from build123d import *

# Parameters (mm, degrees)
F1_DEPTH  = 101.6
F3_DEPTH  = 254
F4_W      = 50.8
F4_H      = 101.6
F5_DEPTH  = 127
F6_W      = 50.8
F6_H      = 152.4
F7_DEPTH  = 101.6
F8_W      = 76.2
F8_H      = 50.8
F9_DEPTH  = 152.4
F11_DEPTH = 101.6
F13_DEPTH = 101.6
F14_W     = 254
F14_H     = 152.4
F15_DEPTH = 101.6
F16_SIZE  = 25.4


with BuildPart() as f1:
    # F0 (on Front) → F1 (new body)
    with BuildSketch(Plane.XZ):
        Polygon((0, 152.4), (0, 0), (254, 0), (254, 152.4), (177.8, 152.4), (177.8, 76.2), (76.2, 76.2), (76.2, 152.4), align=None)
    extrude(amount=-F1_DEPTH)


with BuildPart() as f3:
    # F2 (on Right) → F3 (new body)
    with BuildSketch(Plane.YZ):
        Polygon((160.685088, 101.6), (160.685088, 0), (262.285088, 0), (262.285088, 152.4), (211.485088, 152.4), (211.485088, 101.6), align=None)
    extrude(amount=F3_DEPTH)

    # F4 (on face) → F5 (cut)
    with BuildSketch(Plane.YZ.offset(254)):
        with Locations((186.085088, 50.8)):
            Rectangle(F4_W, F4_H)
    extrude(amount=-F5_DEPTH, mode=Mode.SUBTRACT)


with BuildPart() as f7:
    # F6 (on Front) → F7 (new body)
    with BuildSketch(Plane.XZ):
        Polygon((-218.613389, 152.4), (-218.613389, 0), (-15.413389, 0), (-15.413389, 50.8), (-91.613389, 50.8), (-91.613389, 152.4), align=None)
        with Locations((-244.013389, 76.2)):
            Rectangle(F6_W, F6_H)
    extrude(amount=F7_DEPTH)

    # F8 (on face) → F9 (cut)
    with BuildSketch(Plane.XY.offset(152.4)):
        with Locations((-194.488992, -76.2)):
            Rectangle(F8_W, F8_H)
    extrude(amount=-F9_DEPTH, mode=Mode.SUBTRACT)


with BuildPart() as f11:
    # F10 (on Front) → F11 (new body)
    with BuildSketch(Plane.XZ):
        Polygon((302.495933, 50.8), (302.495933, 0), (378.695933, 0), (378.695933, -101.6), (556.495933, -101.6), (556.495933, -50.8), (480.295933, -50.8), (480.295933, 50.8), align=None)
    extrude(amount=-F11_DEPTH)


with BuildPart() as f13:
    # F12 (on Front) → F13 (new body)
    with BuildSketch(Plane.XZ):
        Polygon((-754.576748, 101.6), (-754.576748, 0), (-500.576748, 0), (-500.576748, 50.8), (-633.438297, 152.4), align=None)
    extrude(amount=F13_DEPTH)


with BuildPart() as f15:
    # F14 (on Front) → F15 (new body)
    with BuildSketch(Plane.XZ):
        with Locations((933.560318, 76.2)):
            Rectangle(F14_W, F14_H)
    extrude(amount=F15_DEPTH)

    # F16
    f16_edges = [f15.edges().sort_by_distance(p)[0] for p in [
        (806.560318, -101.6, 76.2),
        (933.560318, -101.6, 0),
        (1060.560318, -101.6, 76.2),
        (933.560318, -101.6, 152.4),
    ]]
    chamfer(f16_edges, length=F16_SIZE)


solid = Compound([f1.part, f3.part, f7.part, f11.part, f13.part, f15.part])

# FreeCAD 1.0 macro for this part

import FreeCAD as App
import Part
import Sketcher
Q = App.Units.Quantity


def edges_at(feature, points):
    """Names of the edges that pass closest to the given points."""
    edges = feature.Shape.Edges
    near = lambda p: min(range(len(edges)), key=lambda i: edges[i].distToShape(Part.Vertex(*p))[0])
    return sorted({f"Edge{near(p) + 1}" for p in points})


def add_polygon(sketch, points):
    """Adds a closed chain of lines whose ends are joined by coincident constraints."""
    first, n = sketch.GeometryCount, len(points)
    for a, b in zip(points, points[1:] + points[:1]):
        sketch.addGeometry(Part.LineSegment(App.Vector(*a, 0), App.Vector(*b, 0)), False)
    for i in range(n):
        sketch.addConstraint(Sketcher.Constraint("Coincident", first + i, 2, first + (i + 1) % n, 1))

doc = App.newDocument("Part")
params = doc.addObject("Spreadsheet::Sheet", "Params")
for row, (alias, value) in enumerate([
    ("sketch1_width", "10 in"),
    ("sketch1_width2", "3 in"),
    ("sketch1_height", "6 in"),
    ("pad1_length", "4 in"),
    ("sketch2_width", "4 in"),
    ("pad2_length", "10 in"),
    ("sketch3_width", "2 in"),
    ("sketch3_height", "4 in"),
    ("pocket1_length", "5 in"),
    ("sketch4_width", "3 in"),
    ("sketch4_width2", "7 in"),
    ("sketch4_height", "2 in"),
    ("sketch4_height2", "4 in"),
    ("pad3_length", "4 in"),
    ("sketch5_width", "3 in"),
    ("sketch5_height", "2 in"),
    ("pocket2_length", "6 in"),
    ("sketch6_width", "3 in"),
    ("sketch6_width2", "7 in"),
    ("sketch6_height", "2 in"),
    ("sketch6_height2", "4 in"),
    ("pad4_length", "4 in"),
    ("sketch7_width", "10 in"),
    ("sketch7_height", "4 in"),
    ("sketch7_height2", "2 in"),
    ("pad5_length", "4 in"),
    ("sketch8_width", "10 in"),
    ("sketch8_height", "6 in"),
    ("pad6_length", "4 in"),
    ("chamfer_size", "1 in"),
], start=1):
    params.set(f"A{row}", alias)
    params.set(f"B{row}", "=" + value)
    params.setAlias(f"B{row}", alias)

body = doc.addObject("PartDesign::Body", "Body")

sketch1 = body.newObject("Sketcher::SketchObject", "Sketch")
sketch1.AttachmentSupport = (doc.getObject("XZ_Plane"), [""])
sketch1.MapMode = "FlatFace"
add_polygon(sketch1, [(0, 152), (0, 0), (254, 0), (254, 152), (178, 152), (178, 76), (76, 76), (76, 152)])
sketch1.addConstraint(Sketcher.Constraint("Vertical", 0))
sketch1.addConstraint(Sketcher.Constraint("Horizontal", 1))
sketch1.addConstraint(Sketcher.Constraint("Vertical", 2))
sketch1.addConstraint(Sketcher.Constraint("Horizontal", 3))
sketch1.addConstraint(Sketcher.Constraint("Vertical", 4))
sketch1.addConstraint(Sketcher.Constraint("Horizontal", 5))
sketch1.addConstraint(Sketcher.Constraint("Vertical", 6))
sketch1.addConstraint(Sketcher.Constraint("Horizontal", 7))
sketch1.addConstraint(Sketcher.Constraint("Coincident", 0, 2, -1, 1))
sketch1.addConstraint(Sketcher.Constraint("Horizontal", 3, 2, 6, 2))
sketch1.addConstraint(Sketcher.Constraint("Equal", 3, 7))
sketch1.addConstraint(Sketcher.Constraint("Equal", 7, 4))
sketch1.addConstraint(Sketcher.Constraint("DistanceX", 1, 1, 1, 2, Q("10 in")))
sketch1.addConstraint(Sketcher.Constraint("DistanceX", 3, 2, 3, 1, Q("3 in")))
sketch1.addConstraint(Sketcher.Constraint("DistanceY", 0, 2, 0, 1, Q("6 in")))
sketch1.setExpression("Constraints[20]", "Params.sketch1_width")
sketch1.setExpression("Constraints[21]", "Params.sketch1_width2")
sketch1.setExpression("Constraints[22]", "Params.sketch1_height")
pad1 = body.newObject("PartDesign::Pad", "Pad")
pad1.Profile = sketch1
pad1.setExpression("Length", "Params.pad1_length")
pad1.Reversed = True
body2 = doc.addObject("PartDesign::Body", "Body001")

sketch2 = body2.newObject("Sketcher::SketchObject", "Sketch001")
sketch2.AttachmentSupport = (doc.getObject("YZ_Plane001"), [""])
sketch2.MapMode = "FlatFace"
add_polygon(sketch2, [(161, 102), (161, 0), (262, 0), (262, 152), (211, 152), (211, 102)])
sketch2.addConstraint(Sketcher.Constraint("Vertical", 0))
sketch2.addConstraint(Sketcher.Constraint("Horizontal", 1))
sketch2.addConstraint(Sketcher.Constraint("Vertical", 2))
sketch2.addConstraint(Sketcher.Constraint("Horizontal", 3))
sketch2.addConstraint(Sketcher.Constraint("Vertical", 4))
sketch2.addConstraint(Sketcher.Constraint("Horizontal", 5))
sketch2.addConstraint(Sketcher.Constraint("PointOnObject", 0, 2, -1))
sketch2.addConstraint(Sketcher.Constraint("Equal", 3, 5))
sketch2.addConstraint(Sketcher.Constraint("Equal", 1, 0))
sketch2.addConstraint(Sketcher.Constraint("Equal", 5, 4))
sketch2.addConstraint(Sketcher.Constraint("DistanceX", 1, 1, 1, 2, Q("4 in")))
sketch2.addConstraint(Sketcher.Constraint("DistanceX", -1, 1, 0, 2, 160.685088))
sketch2.setExpression("Constraints[16]", "Params.sketch2_width")
pad2 = body2.newObject("PartDesign::Pad", "Pad001")
pad2.Profile = sketch2
pad2.setExpression("Length", "Params.pad2_length")

sketch3 = body2.newObject("Sketcher::SketchObject", "Sketch002")
sketch3.AttachmentSupport = (doc.getObject("YZ_Plane001"), [""])
sketch3.MapMode = "FlatFace"
sketch3.AttachmentOffset = App.Placement(App.Vector(0, 0, 10 * 25.4), App.Rotation())
add_polygon(sketch3, [(161, 102), (161, 0), (211, 0), (211, 102)])
sketch3.addConstraint(Sketcher.Constraint("Vertical", 0))
sketch3.addConstraint(Sketcher.Constraint("Horizontal", 1))
sketch3.addConstraint(Sketcher.Constraint("Vertical", 2))
sketch3.addConstraint(Sketcher.Constraint("Horizontal", 3))
sketch3.addConstraint(Sketcher.Constraint("PointOnObject", 0, 2, -1))
sketch3.addConstraint(Sketcher.Constraint("DistanceX", 1, 1, 1, 2, Q("2 in")))
sketch3.addConstraint(Sketcher.Constraint("DistanceY", 0, 2, 0, 1, Q("4 in")))
sketch3.addConstraint(Sketcher.Constraint("DistanceX", -1, 1, 0, 2, 160.685088))
sketch3.setExpression("Constraints[9]", "Params.sketch3_width")
sketch3.setExpression("Constraints[10]", "Params.sketch3_height")
pocket1 = body2.newObject("PartDesign::Pocket", "Pocket")
pocket1.Profile = sketch3
pocket1.setExpression("Length", "Params.pocket1_length")
body3 = doc.addObject("PartDesign::Body", "Body002")

sketch4 = body3.newObject("Sketcher::SketchObject", "Sketch003")
sketch4.AttachmentSupport = (doc.getObject("XZ_Plane002"), [""])
sketch4.MapMode = "FlatFace"
add_polygon(sketch4, [(-15, 0), (-15, 51), (-92, 51), (-92, 152), (-269, 152), (-269, 0)])
sketch4.addConstraint(Sketcher.Constraint("Vertical", 0))
sketch4.addConstraint(Sketcher.Constraint("Horizontal", 1))
sketch4.addConstraint(Sketcher.Constraint("Vertical", 2))
sketch4.addConstraint(Sketcher.Constraint("Horizontal", 3))
sketch4.addConstraint(Sketcher.Constraint("Vertical", 4))
sketch4.addConstraint(Sketcher.Constraint("Horizontal", 5))
sketch4.addConstraint(Sketcher.Constraint("PointOnObject", 4, 2, -1))
sketch4.addConstraint(Sketcher.Constraint("DistanceX", 1, 2, 1, 1, Q("3 in")))
sketch4.addConstraint(Sketcher.Constraint("DistanceX", 3, 2, 3, 1, Q("7 in")))
sketch4.addConstraint(Sketcher.Constraint("DistanceY", 0, 1, 0, 2, Q("2 in")))
sketch4.addConstraint(Sketcher.Constraint("DistanceY", 2, 1, 2, 2, Q("4 in")))
sketch4.addConstraint(Sketcher.Constraint("DistanceX", 0, 2, -1, 1, 15.413389))
sketch4.setExpression("Constraints[13]", "Params.sketch4_width")
sketch4.setExpression("Constraints[14]", "Params.sketch4_width2")
sketch4.setExpression("Constraints[15]", "Params.sketch4_height")
sketch4.setExpression("Constraints[16]", "Params.sketch4_height2")
pad3 = body3.newObject("PartDesign::Pad", "Pad002")
pad3.Profile = sketch4
pad3.setExpression("Length", "Params.pad3_length")

sketch5 = body3.newObject("Sketcher::SketchObject", "Sketch004")
sketch5.AttachmentSupport = (doc.getObject("XY_Plane002"), [""])
sketch5.MapMode = "FlatFace"
sketch5.AttachmentOffset = App.Placement(App.Vector(0, 0, 6 * 25.4), App.Rotation())
add_polygon(sketch5, [(-233, -51), (-233, -102), (-156, -102), (-156, -51)])
sketch5.addConstraint(Sketcher.Constraint("Vertical", 0))
sketch5.addConstraint(Sketcher.Constraint("Horizontal", 1))
sketch5.addConstraint(Sketcher.Constraint("Vertical", 2))
sketch5.addConstraint(Sketcher.Constraint("Horizontal", 3))
sketch5.addConstraint(Sketcher.Constraint("DistanceX", 1, 1, 1, 2, Q("3 in")))
sketch5.addConstraint(Sketcher.Constraint("DistanceY", 0, 2, 0, 1, Q("2 in")))
sketch5.addConstraint(Sketcher.Constraint("DistanceY", 0, 2, -1, 1, Q("4 in")))
sketch5.addConstraint(Sketcher.Constraint("DistanceX", 0, 2, -1, 1, 232.588992))
sketch5.setExpression("Constraints[8]", "Params.sketch5_width")
sketch5.setExpression("Constraints[9]", "Params.sketch5_height")
pocket2 = body3.newObject("PartDesign::Pocket", "Pocket001")
pocket2.Profile = sketch5
pocket2.setExpression("Length", "Params.pocket2_length")
body4 = doc.addObject("PartDesign::Body", "Body003")

sketch6 = body4.newObject("Sketcher::SketchObject", "Sketch005")
sketch6.AttachmentSupport = (doc.getObject("XZ_Plane003"), [""])
sketch6.MapMode = "FlatFace"
add_polygon(sketch6, [(302, 51), (302, 0), (379, 0), (379, -102), (556, -102), (556, -51), (480, -51), (480, 51)])
sketch6.addConstraint(Sketcher.Constraint("Vertical", 0))
sketch6.addConstraint(Sketcher.Constraint("Horizontal", 1))
sketch6.addConstraint(Sketcher.Constraint("Vertical", 2))
sketch6.addConstraint(Sketcher.Constraint("Horizontal", 3))
sketch6.addConstraint(Sketcher.Constraint("Vertical", 4))
sketch6.addConstraint(Sketcher.Constraint("Horizontal", 5))
sketch6.addConstraint(Sketcher.Constraint("Vertical", 6))
sketch6.addConstraint(Sketcher.Constraint("Horizontal", 7))
sketch6.addConstraint(Sketcher.Constraint("PointOnObject", 0, 2, -1))
sketch6.addConstraint(Sketcher.Constraint("Equal", 1, 5))
sketch6.addConstraint(Sketcher.Constraint("Equal", 0, 4))
sketch6.addConstraint(Sketcher.Constraint("DistanceX", 1, 1, 1, 2, Q("3 in")))
sketch6.addConstraint(Sketcher.Constraint("DistanceX", 3, 1, 3, 2, Q("7 in")))
sketch6.addConstraint(Sketcher.Constraint("DistanceY", 0, 2, 0, 1, Q("2 in")))
sketch6.addConstraint(Sketcher.Constraint("DistanceY", 2, 2, 2, 1, Q("4 in")))
sketch6.addConstraint(Sketcher.Constraint("DistanceX", -1, 1, 0, 2, 302.495933))
sketch6.setExpression("Constraints[19]", "Params.sketch6_width")
sketch6.setExpression("Constraints[20]", "Params.sketch6_width2")
sketch6.setExpression("Constraints[21]", "Params.sketch6_height")
sketch6.setExpression("Constraints[22]", "Params.sketch6_height2")
pad4 = body4.newObject("PartDesign::Pad", "Pad003")
pad4.Profile = sketch6
pad4.setExpression("Length", "Params.pad4_length")
pad4.Reversed = True
body5 = doc.addObject("PartDesign::Body", "Body004")

sketch7 = body5.newObject("Sketcher::SketchObject", "Sketch006")
sketch7.AttachmentSupport = (doc.getObject("XZ_Plane004"), [""])
sketch7.MapMode = "FlatFace"
add_polygon(sketch7, [(-755, 102), (-755, 0), (-501, 0), (-501, 51), (-633, 152)])
sketch7.addConstraint(Sketcher.Constraint("Vertical", 0))
sketch7.addConstraint(Sketcher.Constraint("Horizontal", 1))
sketch7.addConstraint(Sketcher.Constraint("Vertical", 2))
sketch7.addConstraint(Sketcher.Constraint("PointOnObject", 0, 2, -1))
sketch7.addConstraint(Sketcher.Constraint("DistanceX", 1, 1, 1, 2, Q("10 in")))
sketch7.addConstraint(Sketcher.Constraint("DistanceY", 0, 2, 0, 1, Q("4 in")))
sketch7.addConstraint(Sketcher.Constraint("DistanceY", 2, 1, 2, 2, Q("2 in")))
sketch7.addConstraint(Sketcher.Constraint("DistanceY", -1, 1, 3, 2, Q("6 in")))
sketch7.addConstraint(Sketcher.Constraint("DistanceX", 0, 2, -1, 1, 754.576748))
sketch7.addConstraint(Sketcher.Constraint("DistanceX", 3, 2, 2, 2, 132.861549))
sketch7.setExpression("Constraints[9]", "Params.sketch7_width")
sketch7.setExpression("Constraints[10]", "Params.sketch7_height")
sketch7.setExpression("Constraints[11]", "Params.sketch7_height2")
pad5 = body5.newObject("PartDesign::Pad", "Pad004")
pad5.Profile = sketch7
pad5.setExpression("Length", "Params.pad5_length")
body6 = doc.addObject("PartDesign::Body", "Body005")

sketch8 = body6.newObject("Sketcher::SketchObject", "Sketch007")
sketch8.AttachmentSupport = (doc.getObject("XZ_Plane005"), [""])
sketch8.MapMode = "FlatFace"
add_polygon(sketch8, [(807, 152), (807, 0), (1061, 0), (1061, 152)])
sketch8.addConstraint(Sketcher.Constraint("Vertical", 0))
sketch8.addConstraint(Sketcher.Constraint("Horizontal", 1))
sketch8.addConstraint(Sketcher.Constraint("Vertical", 2))
sketch8.addConstraint(Sketcher.Constraint("Horizontal", 3))
sketch8.addConstraint(Sketcher.Constraint("PointOnObject", 0, 2, -1))
sketch8.addConstraint(Sketcher.Constraint("DistanceX", 1, 1, 1, 2, Q("10 in")))
sketch8.addConstraint(Sketcher.Constraint("DistanceY", 0, 2, 0, 1, Q("6 in")))
sketch8.addConstraint(Sketcher.Constraint("DistanceX", -1, 1, 0, 2, 806.560318))
sketch8.setExpression("Constraints[9]", "Params.sketch8_width")
sketch8.setExpression("Constraints[10]", "Params.sketch8_height")
pad6 = body6.newObject("PartDesign::Pad", "Pad005")
pad6.Profile = sketch8
pad6.setExpression("Length", "Params.pad6_length")
doc.recompute()

chamfer = body6.newObject("PartDesign::Chamfer", "Chamfer")
chamfer.Base = (pad6, edges_at(pad6, [
    (806.56, -101.6, 76.2),
    (933.56, -101.6, 0),
    (1060.56, -101.6, 76.2),
    (933.56, -101.6, 152.4),
]))
chamfer.setExpression("Size", "Params.chamfer_size")

doc.recompute()
